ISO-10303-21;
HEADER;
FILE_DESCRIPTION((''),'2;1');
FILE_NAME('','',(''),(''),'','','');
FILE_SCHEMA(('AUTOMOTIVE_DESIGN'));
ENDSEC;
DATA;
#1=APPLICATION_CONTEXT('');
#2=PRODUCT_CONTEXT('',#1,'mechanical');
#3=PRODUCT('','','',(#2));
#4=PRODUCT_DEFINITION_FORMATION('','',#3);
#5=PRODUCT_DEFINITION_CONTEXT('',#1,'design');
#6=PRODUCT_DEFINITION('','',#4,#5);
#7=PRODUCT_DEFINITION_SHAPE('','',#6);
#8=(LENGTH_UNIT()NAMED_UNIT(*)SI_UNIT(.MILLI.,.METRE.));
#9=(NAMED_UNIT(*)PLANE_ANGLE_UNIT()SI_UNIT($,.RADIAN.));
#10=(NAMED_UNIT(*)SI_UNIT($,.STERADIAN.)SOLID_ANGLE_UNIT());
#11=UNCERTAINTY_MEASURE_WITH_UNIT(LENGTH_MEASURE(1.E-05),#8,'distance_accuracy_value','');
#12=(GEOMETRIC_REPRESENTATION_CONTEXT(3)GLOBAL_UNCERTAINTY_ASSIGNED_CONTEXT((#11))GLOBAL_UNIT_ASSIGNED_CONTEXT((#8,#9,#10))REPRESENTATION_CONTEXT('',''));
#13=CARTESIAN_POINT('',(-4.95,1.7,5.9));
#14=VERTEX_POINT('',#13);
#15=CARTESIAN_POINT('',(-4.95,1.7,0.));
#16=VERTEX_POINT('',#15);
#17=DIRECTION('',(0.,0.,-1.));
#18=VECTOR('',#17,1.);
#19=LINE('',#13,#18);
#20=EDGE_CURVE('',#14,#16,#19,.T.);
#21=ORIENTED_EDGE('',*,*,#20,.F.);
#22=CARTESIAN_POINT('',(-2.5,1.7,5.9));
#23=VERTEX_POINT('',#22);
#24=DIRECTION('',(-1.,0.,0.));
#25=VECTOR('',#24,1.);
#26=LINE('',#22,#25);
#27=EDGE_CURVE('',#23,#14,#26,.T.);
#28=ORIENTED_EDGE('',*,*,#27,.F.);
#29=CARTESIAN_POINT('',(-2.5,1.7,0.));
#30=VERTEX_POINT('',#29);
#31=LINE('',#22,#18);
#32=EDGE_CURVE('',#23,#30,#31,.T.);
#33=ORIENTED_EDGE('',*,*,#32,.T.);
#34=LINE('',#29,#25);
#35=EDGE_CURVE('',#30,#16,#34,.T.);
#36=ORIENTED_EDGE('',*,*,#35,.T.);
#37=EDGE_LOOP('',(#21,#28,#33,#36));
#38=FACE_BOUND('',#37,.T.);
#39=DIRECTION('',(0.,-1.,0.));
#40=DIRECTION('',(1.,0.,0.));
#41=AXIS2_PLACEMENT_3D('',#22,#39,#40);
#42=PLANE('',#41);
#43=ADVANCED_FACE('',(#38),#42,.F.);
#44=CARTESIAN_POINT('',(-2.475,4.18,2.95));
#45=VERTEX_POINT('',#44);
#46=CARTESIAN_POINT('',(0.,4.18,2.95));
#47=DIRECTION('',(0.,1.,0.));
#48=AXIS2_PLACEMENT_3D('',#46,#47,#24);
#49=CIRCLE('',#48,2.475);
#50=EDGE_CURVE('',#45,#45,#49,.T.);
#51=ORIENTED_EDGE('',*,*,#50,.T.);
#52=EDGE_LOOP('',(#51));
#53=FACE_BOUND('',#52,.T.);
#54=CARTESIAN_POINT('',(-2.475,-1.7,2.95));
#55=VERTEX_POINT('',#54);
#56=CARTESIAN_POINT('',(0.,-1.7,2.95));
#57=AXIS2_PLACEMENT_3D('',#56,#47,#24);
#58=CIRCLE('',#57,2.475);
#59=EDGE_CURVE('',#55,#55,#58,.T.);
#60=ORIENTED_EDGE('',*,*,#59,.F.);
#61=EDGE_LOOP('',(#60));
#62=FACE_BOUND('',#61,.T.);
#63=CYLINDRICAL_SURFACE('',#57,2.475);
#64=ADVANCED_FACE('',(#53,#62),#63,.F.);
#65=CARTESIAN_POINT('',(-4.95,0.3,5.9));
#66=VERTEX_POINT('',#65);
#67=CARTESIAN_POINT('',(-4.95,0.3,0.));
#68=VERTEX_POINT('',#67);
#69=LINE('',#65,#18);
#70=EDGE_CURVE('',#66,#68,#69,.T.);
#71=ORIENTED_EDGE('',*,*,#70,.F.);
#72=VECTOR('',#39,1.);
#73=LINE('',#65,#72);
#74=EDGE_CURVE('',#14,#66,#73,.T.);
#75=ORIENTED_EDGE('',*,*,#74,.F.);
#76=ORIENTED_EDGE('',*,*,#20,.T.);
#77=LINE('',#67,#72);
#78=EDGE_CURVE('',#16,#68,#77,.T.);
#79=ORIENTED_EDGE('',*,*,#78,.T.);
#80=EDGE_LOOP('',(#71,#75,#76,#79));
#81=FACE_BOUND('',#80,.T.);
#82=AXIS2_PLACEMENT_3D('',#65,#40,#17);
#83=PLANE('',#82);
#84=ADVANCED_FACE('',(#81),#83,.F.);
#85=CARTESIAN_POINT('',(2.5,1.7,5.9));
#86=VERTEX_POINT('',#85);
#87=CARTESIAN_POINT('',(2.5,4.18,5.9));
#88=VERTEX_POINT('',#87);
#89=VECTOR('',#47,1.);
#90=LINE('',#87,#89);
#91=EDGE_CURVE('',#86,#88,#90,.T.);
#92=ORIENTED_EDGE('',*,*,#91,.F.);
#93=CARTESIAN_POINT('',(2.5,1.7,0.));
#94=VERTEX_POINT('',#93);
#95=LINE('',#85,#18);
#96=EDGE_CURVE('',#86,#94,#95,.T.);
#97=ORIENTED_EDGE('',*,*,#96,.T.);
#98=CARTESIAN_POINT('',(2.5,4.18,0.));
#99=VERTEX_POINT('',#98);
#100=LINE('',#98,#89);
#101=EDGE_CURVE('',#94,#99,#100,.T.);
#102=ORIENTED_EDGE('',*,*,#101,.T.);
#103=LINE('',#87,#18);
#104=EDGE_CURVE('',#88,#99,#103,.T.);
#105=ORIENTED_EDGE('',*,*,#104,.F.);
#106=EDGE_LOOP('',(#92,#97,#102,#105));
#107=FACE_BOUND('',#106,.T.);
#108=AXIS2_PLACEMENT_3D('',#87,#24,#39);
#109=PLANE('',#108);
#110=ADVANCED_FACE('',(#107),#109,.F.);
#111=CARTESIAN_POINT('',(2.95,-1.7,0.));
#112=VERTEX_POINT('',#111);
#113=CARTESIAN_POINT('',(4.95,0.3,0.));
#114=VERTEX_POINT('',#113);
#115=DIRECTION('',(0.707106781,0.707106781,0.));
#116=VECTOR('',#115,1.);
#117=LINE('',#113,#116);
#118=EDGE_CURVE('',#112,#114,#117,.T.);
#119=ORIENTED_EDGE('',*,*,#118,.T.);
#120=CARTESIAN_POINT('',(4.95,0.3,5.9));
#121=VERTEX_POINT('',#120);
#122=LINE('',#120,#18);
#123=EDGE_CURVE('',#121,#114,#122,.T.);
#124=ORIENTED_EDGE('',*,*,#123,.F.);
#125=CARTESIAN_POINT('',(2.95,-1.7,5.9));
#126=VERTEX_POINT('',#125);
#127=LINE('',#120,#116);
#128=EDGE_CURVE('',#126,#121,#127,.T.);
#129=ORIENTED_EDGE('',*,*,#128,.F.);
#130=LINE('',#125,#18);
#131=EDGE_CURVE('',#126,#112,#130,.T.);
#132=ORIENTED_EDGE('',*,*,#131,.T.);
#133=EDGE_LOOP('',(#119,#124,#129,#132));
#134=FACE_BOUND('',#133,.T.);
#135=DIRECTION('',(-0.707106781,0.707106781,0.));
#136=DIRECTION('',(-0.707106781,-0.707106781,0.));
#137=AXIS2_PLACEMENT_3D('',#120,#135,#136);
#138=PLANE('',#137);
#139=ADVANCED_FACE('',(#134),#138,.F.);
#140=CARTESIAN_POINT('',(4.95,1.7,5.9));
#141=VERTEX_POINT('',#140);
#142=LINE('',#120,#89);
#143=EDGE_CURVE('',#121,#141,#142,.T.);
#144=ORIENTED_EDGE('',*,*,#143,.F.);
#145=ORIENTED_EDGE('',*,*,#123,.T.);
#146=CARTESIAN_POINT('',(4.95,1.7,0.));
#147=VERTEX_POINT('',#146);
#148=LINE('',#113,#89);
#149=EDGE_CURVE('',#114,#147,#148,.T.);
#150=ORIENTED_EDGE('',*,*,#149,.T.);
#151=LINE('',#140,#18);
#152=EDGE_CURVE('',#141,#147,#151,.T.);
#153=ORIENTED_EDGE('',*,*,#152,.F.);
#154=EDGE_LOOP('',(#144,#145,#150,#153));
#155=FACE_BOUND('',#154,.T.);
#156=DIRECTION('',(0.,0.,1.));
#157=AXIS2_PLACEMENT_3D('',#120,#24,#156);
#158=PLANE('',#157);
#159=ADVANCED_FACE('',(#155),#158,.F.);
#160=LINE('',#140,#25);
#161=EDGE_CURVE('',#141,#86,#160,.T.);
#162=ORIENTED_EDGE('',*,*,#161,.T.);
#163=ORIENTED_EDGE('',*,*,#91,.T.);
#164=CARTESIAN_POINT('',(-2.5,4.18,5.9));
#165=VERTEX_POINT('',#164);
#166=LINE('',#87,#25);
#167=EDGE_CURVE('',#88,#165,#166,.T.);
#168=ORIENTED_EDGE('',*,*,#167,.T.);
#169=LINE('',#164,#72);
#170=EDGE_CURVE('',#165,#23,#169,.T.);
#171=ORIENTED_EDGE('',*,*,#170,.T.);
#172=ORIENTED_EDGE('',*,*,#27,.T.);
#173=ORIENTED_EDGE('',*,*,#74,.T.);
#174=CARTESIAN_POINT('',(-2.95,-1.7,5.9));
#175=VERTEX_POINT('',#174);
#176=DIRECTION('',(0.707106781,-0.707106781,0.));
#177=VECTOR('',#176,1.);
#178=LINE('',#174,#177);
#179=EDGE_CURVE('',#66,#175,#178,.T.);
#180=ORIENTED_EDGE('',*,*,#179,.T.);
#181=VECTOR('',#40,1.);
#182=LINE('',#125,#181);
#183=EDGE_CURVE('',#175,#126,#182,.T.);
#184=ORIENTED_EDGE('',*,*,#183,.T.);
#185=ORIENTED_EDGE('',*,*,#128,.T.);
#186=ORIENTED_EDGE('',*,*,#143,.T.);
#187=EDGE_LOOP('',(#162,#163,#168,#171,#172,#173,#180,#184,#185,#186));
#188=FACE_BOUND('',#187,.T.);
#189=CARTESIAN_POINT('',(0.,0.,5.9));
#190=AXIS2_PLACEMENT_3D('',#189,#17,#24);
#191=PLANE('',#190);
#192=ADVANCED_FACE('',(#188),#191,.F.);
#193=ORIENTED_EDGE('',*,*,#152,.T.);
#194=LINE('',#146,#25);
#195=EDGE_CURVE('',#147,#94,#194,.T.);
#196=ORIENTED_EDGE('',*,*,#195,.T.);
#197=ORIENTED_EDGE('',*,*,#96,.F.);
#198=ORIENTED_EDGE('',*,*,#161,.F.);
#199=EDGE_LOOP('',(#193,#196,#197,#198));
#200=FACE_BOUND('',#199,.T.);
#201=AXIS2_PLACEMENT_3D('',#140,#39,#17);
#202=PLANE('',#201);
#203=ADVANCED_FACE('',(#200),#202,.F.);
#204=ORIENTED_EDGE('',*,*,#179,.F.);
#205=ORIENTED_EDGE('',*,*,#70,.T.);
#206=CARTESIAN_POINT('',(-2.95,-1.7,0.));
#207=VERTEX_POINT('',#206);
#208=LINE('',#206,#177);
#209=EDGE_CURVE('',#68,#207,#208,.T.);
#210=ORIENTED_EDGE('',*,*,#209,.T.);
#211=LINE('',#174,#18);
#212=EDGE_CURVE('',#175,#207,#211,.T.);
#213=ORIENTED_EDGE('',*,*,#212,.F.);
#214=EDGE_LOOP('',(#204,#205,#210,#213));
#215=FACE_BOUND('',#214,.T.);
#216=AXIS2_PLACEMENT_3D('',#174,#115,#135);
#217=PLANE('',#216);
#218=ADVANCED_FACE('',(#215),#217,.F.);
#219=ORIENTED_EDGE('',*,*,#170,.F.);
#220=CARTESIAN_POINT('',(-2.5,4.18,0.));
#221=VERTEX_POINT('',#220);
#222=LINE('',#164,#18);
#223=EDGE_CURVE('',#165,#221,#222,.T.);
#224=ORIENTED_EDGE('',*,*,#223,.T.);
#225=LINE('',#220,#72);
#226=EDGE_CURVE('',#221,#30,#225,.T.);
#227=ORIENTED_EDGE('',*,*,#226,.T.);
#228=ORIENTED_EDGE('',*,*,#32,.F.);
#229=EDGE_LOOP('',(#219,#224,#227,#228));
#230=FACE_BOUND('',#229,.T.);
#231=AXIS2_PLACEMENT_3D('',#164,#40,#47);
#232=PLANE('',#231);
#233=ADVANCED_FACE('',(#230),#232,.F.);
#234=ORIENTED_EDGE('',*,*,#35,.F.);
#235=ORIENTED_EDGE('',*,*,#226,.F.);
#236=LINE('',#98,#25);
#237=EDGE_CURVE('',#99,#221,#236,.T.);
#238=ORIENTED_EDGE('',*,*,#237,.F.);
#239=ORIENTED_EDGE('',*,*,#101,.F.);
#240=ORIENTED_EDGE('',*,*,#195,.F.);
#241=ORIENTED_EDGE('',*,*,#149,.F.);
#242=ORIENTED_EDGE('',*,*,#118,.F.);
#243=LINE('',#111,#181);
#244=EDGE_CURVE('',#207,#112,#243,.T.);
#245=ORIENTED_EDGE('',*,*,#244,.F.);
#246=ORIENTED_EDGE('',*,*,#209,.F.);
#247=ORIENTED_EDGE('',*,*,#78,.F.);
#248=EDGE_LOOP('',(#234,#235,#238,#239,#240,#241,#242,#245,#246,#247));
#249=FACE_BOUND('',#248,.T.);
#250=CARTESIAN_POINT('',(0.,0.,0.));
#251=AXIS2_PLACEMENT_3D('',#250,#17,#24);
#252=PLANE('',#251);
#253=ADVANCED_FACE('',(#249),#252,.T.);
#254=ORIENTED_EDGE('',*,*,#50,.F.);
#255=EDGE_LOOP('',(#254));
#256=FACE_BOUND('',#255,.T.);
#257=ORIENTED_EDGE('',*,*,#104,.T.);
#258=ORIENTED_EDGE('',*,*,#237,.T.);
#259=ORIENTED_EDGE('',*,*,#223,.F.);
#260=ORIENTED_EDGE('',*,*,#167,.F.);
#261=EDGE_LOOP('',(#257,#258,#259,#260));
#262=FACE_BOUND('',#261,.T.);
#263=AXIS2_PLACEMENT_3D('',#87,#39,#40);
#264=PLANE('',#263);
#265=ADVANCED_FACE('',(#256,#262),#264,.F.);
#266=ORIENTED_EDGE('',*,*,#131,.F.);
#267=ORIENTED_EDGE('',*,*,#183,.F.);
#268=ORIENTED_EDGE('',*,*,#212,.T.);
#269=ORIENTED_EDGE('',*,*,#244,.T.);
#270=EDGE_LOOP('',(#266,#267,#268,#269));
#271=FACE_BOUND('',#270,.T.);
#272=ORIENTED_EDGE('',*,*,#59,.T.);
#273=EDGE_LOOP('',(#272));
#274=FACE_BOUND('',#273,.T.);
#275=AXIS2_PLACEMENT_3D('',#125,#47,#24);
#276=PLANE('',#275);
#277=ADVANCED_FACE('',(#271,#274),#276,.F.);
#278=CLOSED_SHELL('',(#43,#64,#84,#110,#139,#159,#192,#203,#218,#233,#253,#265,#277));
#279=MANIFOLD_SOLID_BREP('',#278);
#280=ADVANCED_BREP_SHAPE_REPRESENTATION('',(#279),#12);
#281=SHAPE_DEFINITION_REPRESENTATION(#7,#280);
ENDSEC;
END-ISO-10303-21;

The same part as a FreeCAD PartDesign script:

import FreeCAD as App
import Part
import Sketcher
from FreeCAD import Vector
Q = App.Units.Quantity

doc = App.newDocument("Part")
body = doc.addObject("PartDesign::Body", "Body")

sketch1 = body.newObject("Sketcher::SketchObject", "Sketch")
sketch1.AttachmentSupport = (doc.getObject("XY_Plane"), [""])
sketch1.MapMode = "FlatFace"
sketch1.addGeometry(Part.LineSegment(Vector(3, -1.7, 0), Vector(5, 0.3, 0)), False)
sketch1.addGeometry(Part.LineSegment(Vector(5, 0.3, 0), Vector(5, 1.7, 0)), False)
sketch1.addGeometry(Part.LineSegment(Vector(5, 1.7, 0), Vector(2.5, 1.7, 0)), False)
sketch1.addGeometry(Part.LineSegment(Vector(2.5, 1.7, 0), Vector(2.5, 4.2, 0)), False)
sketch1.addGeometry(Part.LineSegment(Vector(2.5, 4.2, 0), Vector(-2.5, 4.2, 0)), False)
sketch1.addGeometry(Part.LineSegment(Vector(-2.5, 4.2, 0), Vector(-2.5, 1.7, 0)), False)
sketch1.addGeometry(Part.LineSegment(Vector(-2.5, 1.7, 0), Vector(-5, 1.7, 0)), False)
sketch1.addGeometry(Part.LineSegment(Vector(-5, 1.7, 0), Vector(-5, 0.3, 0)), False)
sketch1.addGeometry(Part.LineSegment(Vector(-5, 0.3, 0), Vector(-3, -1.7, 0)), False)
sketch1.addGeometry(Part.LineSegment(Vector(-3, -1.7, 0), Vector(3, -1.7, 0)), False)
sketch1.addConstraint(Sketcher.Constraint("Coincident", 0, 2, 1, 1))
sketch1.addConstraint(Sketcher.Constraint("Coincident", 1, 2, 2, 1))
sketch1.addConstraint(Sketcher.Constraint("Coincident", 2, 2, 3, 1))
sketch1.addConstraint(Sketcher.Constraint("Coincident", 3, 2, 4, 1))
sketch1.addConstraint(Sketcher.Constraint("Coincident", 4, 2, 5, 1))
sketch1.addConstraint(Sketcher.Constraint("Coincident", 5, 2, 6, 1))
sketch1.addConstraint(Sketcher.Constraint("Coincident", 6, 2, 7, 1))
sketch1.addConstraint(Sketcher.Constraint("Coincident", 7, 2, 8, 1))
sketch1.addConstraint(Sketcher.Constraint("Coincident", 8, 2, 9, 1))
sketch1.addConstraint(Sketcher.Constraint("Coincident", 9, 2, 0, 1))
sketch1.addConstraint(Sketcher.Constraint("Vertical", 1))
sketch1.addConstraint(Sketcher.Constraint("Horizontal", 2))
sketch1.addConstraint(Sketcher.Constraint("Vertical", 3))
sketch1.addConstraint(Sketcher.Constraint("Horizontal", 4))
sketch1.addConstraint(Sketcher.Constraint("Vertical", 5))
sketch1.addConstraint(Sketcher.Constraint("Horizontal", 6))
sketch1.addConstraint(Sketcher.Constraint("Vertical", 7))
sketch1.addConstraint(Sketcher.Constraint("Horizontal", 9))
sketch1.addConstraint(Sketcher.Constraint("Symmetric", 2, 2, 5, 2, -2))
sketch1.addConstraint(Sketcher.Constraint("Symmetric", 0, 2, 7, 2, -2))
sketch1.addConstraint(Sketcher.Constraint("Perpendicular", 0, 8))
sketch1.addConstraint(Sketcher.Constraint("Equal", 0, 8))
sketch1.addConstraint(Sketcher.Constraint("DistanceX", 4, 2, 4, 1, Q("5 mm")))
sketch1.addConstraint(Sketcher.Constraint("DistanceX", 9, 1, 9, 2, Q("5.9 mm")))
sketch1.addConstraint(Sketcher.Constraint("DistanceY", 1, 1, 1, 2, Q("1.4 mm")))
sketch1.addConstraint(Sketcher.Constraint("DistanceX", 7, 2, 8, 2, Q("2 mm")))
sketch1.addConstraint(Sketcher.Constraint("DistanceY", 3, 1, 3, 2, Q("2.48 mm")))
sketch1.addConstraint(Sketcher.Constraint("DistanceY", -1, 1, 0, 2, Q("0.3 mm")))
pad1 = body.newObject("PartDesign::Pad", "Pad")
pad1.Profile = sketch1
pad1.Length = 5.9

sketch2 = body.newObject("Sketcher::SketchObject", "Sketch001")
sketch2.AttachmentSupport = (doc.getObject("XZ_Plane"), [""])
sketch2.MapMode = "FlatFace"
sketch2.AttachmentOffset = App.Placement(Vector(0, 0, -4.18), App.Rotation())
sketch2.addGeometry(Part.Circle(Vector(0, 3, 0), Vector(0, 0, 1), 2.5), False)
sketch2.addConstraint(Sketcher.Constraint("PointOnObject", 0, 3, -2))
sketch2.addConstraint(Sketcher.Constraint("Diameter", 0, Q("4.95 mm")))
sketch2.addConstraint(Sketcher.Constraint("DistanceY", -1, 1, 0, 3, Q("2.95 mm")))
pocket1 = body.newObject("PartDesign::Pocket", "Pocket")
pocket1.Profile = sketch2
pocket1.Type = "ThroughAll"
pocket1.Reversed = True

doc.recompute()
